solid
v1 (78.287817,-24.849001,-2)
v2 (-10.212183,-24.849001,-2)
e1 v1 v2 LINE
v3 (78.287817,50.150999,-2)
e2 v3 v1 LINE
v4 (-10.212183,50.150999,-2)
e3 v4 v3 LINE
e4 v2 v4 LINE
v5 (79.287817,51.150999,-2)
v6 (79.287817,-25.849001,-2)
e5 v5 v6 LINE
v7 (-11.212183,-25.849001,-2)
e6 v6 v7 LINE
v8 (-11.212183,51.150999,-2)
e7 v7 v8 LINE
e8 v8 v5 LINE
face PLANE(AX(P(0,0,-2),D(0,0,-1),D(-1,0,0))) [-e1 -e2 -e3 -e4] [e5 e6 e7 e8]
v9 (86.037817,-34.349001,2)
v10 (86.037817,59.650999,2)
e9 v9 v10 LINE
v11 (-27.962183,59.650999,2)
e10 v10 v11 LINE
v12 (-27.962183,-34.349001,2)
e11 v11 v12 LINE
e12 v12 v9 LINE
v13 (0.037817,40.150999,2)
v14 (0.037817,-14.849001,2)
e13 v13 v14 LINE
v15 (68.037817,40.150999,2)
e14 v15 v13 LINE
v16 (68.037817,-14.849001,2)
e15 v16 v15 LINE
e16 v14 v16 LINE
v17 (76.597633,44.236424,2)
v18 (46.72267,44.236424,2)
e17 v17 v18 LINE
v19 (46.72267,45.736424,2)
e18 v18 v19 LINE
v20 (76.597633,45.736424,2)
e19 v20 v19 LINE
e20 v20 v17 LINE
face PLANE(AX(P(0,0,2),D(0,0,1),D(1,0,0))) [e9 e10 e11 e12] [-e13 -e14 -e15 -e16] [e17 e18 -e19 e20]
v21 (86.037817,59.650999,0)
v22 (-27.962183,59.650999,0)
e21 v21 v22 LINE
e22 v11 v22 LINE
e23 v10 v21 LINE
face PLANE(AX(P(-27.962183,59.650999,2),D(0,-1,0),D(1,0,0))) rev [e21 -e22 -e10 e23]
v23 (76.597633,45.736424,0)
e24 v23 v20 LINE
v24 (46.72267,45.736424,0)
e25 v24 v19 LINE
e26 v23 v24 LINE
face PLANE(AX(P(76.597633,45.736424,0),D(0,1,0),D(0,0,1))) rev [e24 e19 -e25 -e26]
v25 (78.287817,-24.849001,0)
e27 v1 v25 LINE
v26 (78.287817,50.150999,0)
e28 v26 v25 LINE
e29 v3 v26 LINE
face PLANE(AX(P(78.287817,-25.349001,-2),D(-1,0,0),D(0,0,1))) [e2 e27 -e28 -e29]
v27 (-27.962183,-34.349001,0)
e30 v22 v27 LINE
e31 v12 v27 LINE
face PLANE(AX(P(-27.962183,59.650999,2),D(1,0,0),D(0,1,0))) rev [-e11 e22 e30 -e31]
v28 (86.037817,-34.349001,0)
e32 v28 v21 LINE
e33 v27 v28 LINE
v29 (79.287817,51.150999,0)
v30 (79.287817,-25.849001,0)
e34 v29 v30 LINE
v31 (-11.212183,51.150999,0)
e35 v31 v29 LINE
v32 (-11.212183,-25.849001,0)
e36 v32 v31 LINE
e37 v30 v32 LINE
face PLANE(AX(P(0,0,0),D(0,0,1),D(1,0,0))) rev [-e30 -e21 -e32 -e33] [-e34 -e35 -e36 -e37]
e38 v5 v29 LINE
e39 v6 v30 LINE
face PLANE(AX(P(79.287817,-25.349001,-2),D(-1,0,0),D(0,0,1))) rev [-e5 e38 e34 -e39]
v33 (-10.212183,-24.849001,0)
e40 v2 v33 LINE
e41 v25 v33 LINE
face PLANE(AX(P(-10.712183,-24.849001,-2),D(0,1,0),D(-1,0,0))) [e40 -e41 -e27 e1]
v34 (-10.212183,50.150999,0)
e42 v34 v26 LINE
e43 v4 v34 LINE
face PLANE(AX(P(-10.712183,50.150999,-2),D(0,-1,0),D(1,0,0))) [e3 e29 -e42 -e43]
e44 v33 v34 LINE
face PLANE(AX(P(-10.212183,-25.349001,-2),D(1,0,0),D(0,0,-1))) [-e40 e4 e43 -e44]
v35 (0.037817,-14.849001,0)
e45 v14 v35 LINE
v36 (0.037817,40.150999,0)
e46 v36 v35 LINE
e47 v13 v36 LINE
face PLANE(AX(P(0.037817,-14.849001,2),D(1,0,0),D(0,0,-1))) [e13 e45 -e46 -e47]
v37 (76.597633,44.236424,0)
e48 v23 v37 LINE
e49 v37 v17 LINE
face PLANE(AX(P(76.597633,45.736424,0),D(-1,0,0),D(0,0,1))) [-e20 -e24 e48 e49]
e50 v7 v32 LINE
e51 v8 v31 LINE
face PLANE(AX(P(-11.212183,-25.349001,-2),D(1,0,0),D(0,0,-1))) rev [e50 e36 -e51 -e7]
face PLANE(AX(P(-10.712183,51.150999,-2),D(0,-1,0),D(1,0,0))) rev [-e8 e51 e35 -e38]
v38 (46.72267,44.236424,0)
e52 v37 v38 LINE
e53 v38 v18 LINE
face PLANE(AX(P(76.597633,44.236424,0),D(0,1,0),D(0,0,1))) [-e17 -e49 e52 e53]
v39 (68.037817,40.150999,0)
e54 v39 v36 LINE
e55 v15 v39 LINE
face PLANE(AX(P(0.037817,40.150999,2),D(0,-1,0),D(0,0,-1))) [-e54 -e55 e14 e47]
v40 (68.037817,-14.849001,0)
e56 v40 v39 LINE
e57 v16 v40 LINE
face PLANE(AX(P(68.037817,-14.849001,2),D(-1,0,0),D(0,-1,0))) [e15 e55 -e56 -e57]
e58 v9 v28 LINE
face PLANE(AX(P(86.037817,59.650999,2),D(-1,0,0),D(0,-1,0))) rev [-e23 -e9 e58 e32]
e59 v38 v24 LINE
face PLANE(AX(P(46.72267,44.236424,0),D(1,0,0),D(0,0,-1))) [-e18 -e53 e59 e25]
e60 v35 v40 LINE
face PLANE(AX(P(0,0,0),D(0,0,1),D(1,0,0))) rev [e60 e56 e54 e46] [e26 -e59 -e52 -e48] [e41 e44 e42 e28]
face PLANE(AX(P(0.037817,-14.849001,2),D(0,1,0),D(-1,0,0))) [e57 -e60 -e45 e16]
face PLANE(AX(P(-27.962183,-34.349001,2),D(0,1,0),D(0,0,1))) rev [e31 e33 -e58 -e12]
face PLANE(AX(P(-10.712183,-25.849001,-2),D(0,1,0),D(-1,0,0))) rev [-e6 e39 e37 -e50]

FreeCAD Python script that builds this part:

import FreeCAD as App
import Part
import Sketcher

V = App.Vector


def add_polygon(sketch, points):
    """Adds a closed chain of lines whose ends are joined by coincident constraints."""
    first, n = sketch.GeometryCount, len(points)
    for a, b in zip(points, points[1:] + points[:1]):
        sketch.addGeometry(Part.LineSegment(App.Vector(*a, 0), App.Vector(*b, 0)), False)
    for i in range(n):
        sketch.addConstraint(Sketcher.Constraint("Coincident", first + i, 2, first + (i + 1) % n, 1))

doc = App.newDocument("Part")
params = doc.addObject("Spreadsheet::Sheet", "Params")
for row, (alias, value) in enumerate([
    ("sketch1_width", "114 mm"),
    ("sketch1_width2", "68 mm"),
    ("sketch1_height", "94 mm"),
    ("sketch1_height2", "55 mm"),
    ("pad1_length", "2 mm"),
    ("sketch2_height", "1.5 mm"),
    ("sketch3_height", "77 mm"),
    ("sketch3_height2", "75 mm"),
    ("sketch3_width", "90.5 mm"),
    ("sketch3_width2", "88.5 mm"),
    ("pad2_length", "2 mm"),
], start=1):
    params.set(f"A{row}", alias)
    params.set(f"B{row}", "=" + value)
    params.setAlias(f"B{row}", alias)

body = doc.addObject("PartDesign::Body", "Body")

# Sketch on XY plane
sketch1 = body.newObject("Sketcher::SketchObject", "Sketch")
sketch1.AttachmentSupport = (doc.getObject("XY_Plane"), [""])
sketch1.MapMode = "FlatFace"
add_polygon(sketch1, [(-27.962183, 59.650999), (-27.962183, -34.349001), (86.037817, -34.349001), (86.037817, 59.650999)])  # lines 0-3
add_polygon(sketch1, [(68.037817, -14.849001), (0.037817, -14.849001), (0.037817, 40.150999), (68.037817, 40.150999)])  # lines 4-7
sketch1.addConstraint(Sketcher.Constraint("Vertical", 0))
sketch1.addConstraint(Sketcher.Constraint("Horizontal", 1))
sketch1.addConstraint(Sketcher.Constraint("Vertical", 2))
sketch1.addConstraint(Sketcher.Constraint("Horizontal", 3))
sketch1.addConstraint(Sketcher.Constraint("Horizontal", 4))
sketch1.addConstraint(Sketcher.Constraint("Vertical", 5))
sketch1.addConstraint(Sketcher.Constraint("Horizontal", 6))
sketch1.addConstraint(Sketcher.Constraint("Vertical", 7))
sketch1.addConstraint(Sketcher.Constraint("DistanceX", 1, 1, 1, 2, 114.0))
sketch1.addConstraint(Sketcher.Constraint("DistanceX", 4, 2, 4, 1, 68.0))
sketch1.addConstraint(Sketcher.Constraint("DistanceY", 0, 2, 0, 1, 94.0))
sketch1.addConstraint(Sketcher.Constraint("DistanceY", 5, 1, 5, 2, 55.0))
sketch1.addConstraint(Sketcher.Constraint("DistanceX", 0, 2, 4, 2, 28.0))
sketch1.addConstraint(Sketcher.Constraint("DistanceY", 0, 2, 4, 2, 19.5))
sketch1.addConstraint(Sketcher.Constraint("DistanceY", 0, 2, -1, 1, 34.349001))
sketch1.addConstraint(Sketcher.Constraint("DistanceX", 0, 2, -1, 1, 27.962183))
sketch1.setExpression("Constraints[16]", "Params.sketch1_width")
sketch1.setExpression("Constraints[17]", "Params.sketch1_width2")
sketch1.setExpression("Constraints[18]", "Params.sketch1_height")
sketch1.setExpression("Constraints[19]", "Params.sketch1_height2")
pad1 = body.newObject("PartDesign::Pad", "Pad")
pad1.Profile = sketch1
pad1.setExpression("Length", "Params.pad1_length")

# Sketch on XY plane
sketch2 = body.newObject("Sketcher::SketchObject", "Sketch001")
sketch2.AttachmentSupport = (doc.getObject("XY_Plane"), [""])
sketch2.MapMode = "FlatFace"
sketch2.AttachmentOffset = App.Placement(V(0, 0, 2), App.Rotation())
add_polygon(sketch2, [(46.72267, 45.736424), (46.72267, 44.236424), (76.597633, 44.236424), (76.597633, 45.736424)])  # lines 0-3
sketch2.addConstraint(Sketcher.Constraint("Vertical", 0))
sketch2.addConstraint(Sketcher.Constraint("Horizontal", 1))
sketch2.addConstraint(Sketcher.Constraint("Vertical", 2))
sketch2.addConstraint(Sketcher.Constraint("Horizontal", 3))
sketch2.addConstraint(Sketcher.Constraint("DistanceY", 0, 2, 0, 1, 1.5))
sketch2.addConstraint(Sketcher.Constraint("DistanceX", 1, 1, 1, 2, 29.874963))
sketch2.addConstraint(Sketcher.Constraint("DistanceX", -1, 1, 0, 2, 46.72267))
sketch2.addConstraint(Sketcher.Constraint("DistanceY", -1, 1, 0, 2, 44.236424))
sketch2.setExpression("Constraints[8]", "Params.sketch2_height")
pocket1 = body.newObject("PartDesign::Pocket", "Pocket")
pocket1.Profile = sketch2
pocket1.Type = "ThroughAll"
pocket1.Midplane = True

# Sketch on XY plane
sketch3 = body.newObject("Sketcher::SketchObject", "Sketch002")
sketch3.AttachmentSupport = (doc.getObject("XY_Plane"), [""])
sketch3.MapMode = "FlatFace"
add_polygon(sketch3, [(79.287817, 51.150999), (79.287817, -25.849001), (-11.212183, -25.849001), (-11.212183, 51.150999)])  # lines 0-3
add_polygon(sketch3, [(-10.212183, -24.849001), (78.287817, -24.849001), (78.287817, 50.150999), (-10.212183, 50.150999)])  # lines 4-7
sketch3.addConstraint(Sketcher.Constraint("Vertical", 0))
sketch3.addConstraint(Sketcher.Constraint("Horizontal", 1))
sketch3.addConstraint(Sketcher.Constraint("Vertical", 2))
sketch3.addConstraint(Sketcher.Constraint("Horizontal", 3))
sketch3.addConstraint(Sketcher.Constraint("Horizontal", 4))
sketch3.addConstraint(Sketcher.Constraint("Vertical", 5))
sketch3.addConstraint(Sketcher.Constraint("Horizontal", 6))
sketch3.addConstraint(Sketcher.Constraint("Vertical", 7))
sketch3.addConstraint(Sketcher.Constraint("DistanceY", 0, 2, 0, 1, 77.0))
sketch3.addConstraint(Sketcher.Constraint("DistanceY", 5, 1, 5, 2, 75.0))
sketch3.addConstraint(Sketcher.Constraint("DistanceX", 1, 2, 1, 1, 90.5))
sketch3.addConstraint(Sketcher.Constraint("DistanceX", 4, 1, 4, 2, 88.5))
sketch3.addConstraint(Sketcher.Constraint("DistanceX", 4, 2, 0, 2, 1.0))
sketch3.addConstraint(Sketcher.Constraint("DistanceY", 0, 2, 4, 2, 1.0))
sketch3.addConstraint(Sketcher.Constraint("DistanceY", 0, 2, -1, 1, 25.849001))
sketch3.addConstraint(Sketcher.Constraint("DistanceX", -1, 1, 0, 2, 79.287817))
sketch3.setExpression("Constraints[16]", "Params.sketch3_height")
sketch3.setExpression("Constraints[17]", "Params.sketch3_height2")
sketch3.setExpression("Constraints[18]", "Params.sketch3_width")
sketch3.setExpression("Constraints[19]", "Params.sketch3_width2")
pad2 = body.newObject("PartDesign::Pad", "Pad001")
pad2.Profile = sketch3
pad2.setExpression("Length", "Params.pad2_length")
pad2.Reversed = True

doc.recompute()
